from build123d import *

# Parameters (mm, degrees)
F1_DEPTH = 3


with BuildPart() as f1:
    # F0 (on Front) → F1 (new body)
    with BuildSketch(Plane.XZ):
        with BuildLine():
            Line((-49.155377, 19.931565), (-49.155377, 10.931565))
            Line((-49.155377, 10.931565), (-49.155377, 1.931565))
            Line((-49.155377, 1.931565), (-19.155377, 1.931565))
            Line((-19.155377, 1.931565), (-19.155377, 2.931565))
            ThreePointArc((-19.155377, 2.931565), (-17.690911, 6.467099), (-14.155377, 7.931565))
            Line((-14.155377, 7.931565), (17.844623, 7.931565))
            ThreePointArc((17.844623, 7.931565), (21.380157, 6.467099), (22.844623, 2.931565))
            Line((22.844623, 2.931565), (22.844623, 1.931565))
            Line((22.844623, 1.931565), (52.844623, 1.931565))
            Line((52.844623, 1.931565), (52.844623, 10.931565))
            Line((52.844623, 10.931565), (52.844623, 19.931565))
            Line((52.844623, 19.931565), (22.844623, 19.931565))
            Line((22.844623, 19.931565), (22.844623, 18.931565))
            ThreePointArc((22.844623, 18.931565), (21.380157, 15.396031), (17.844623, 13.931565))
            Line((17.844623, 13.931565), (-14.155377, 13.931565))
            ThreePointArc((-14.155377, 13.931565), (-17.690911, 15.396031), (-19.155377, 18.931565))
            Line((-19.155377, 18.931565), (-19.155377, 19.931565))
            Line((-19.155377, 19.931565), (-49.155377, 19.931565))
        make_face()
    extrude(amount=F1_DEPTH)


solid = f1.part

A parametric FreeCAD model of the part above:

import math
import FreeCAD as App
import Part
import Sketcher

V = App.Vector

doc = App.newDocument("Part")
body = doc.addObject("PartDesign::Body", "Body")

# Sketch on XZ plane
sketch1 = body.newObject("Sketcher::SketchObject", "Sketch")
sketch1.AttachmentSupport = (doc.getObject("XZ_Plane"), [""])
sketch1.MapMode = "FlatFace"
sketch1.addGeometry(Part.LineSegment(V(-49.2, 19.9, 0), V(-49.2, 1.9, 0)), False)
sketch1.addGeometry(Part.LineSegment(V(-49.2, 1.9, 0), V(-19.2, 1.9, 0)), False)
sketch1.addGeometry(Part.LineSegment(V(-19.2, 1.9, 0), V(-19.2, 2.9, 0)), False)
sketch1.addGeometry(Part.ArcOfCircle(Part.Circle(V(-14.2, 2.9, 0), V(0, 0, 1), 5), math.radians(90), math.radians(180)), False)
sketch1.addGeometry(Part.LineSegment(V(-14.2, 7.9, 0), V(17.8, 7.9, 0)), False)
sketch1.addGeometry(Part.ArcOfCircle(Part.Circle(V(17.8, 2.9, 0), V(0, 0, 1), 5), math.radians(0), math.radians(90)), False)
sketch1.addGeometry(Part.LineSegment(V(22.8, 2.9, 0), V(22.8, 1.9, 0)), False)
sketch1.addGeometry(Part.LineSegment(V(22.8, 1.9, 0), V(52.8, 1.9, 0)), False)
sketch1.addGeometry(Part.LineSegment(V(52.8, 1.9, 0), V(52.8, 19.9, 0)), False)
sketch1.addGeometry(Part.LineSegment(V(52.8, 19.9, 0), V(22.8, 19.9, 0)), False)
sketch1.addGeometry(Part.LineSegment(V(22.8, 19.9, 0), V(22.8, 18.9, 0)), False)
sketch1.addGeometry(Part.ArcOfCircle(Part.Circle(V(17.8, 18.9, 0), V(0, 0, 1), 5), math.radians(-90), math.radians(0)), False)
sketch1.addGeometry(Part.LineSegment(V(17.8, 13.9, 0), V(-14.2, 13.9, 0)), False)
sketch1.addGeometry(Part.ArcOfCircle(Part.Circle(V(-14.2, 18.9, 0), V(0, 0, 1), 5), math.radians(180), math.radians(270)), False)
sketch1.addGeometry(Part.LineSegment(V(-19.2, 18.9, 0), V(-19.2, 19.9, 0)), False)
sketch1.addGeometry(Part.LineSegment(V(-19.2, 19.9, 0), V(-49.2, 19.9, 0)), False)
sketch1.addConstraint(Sketcher.Constraint("Coincident", 0, 2, 1, 1))
sketch1.addConstraint(Sketcher.Constraint("Coincident", 1, 2, 2, 1))
sketch1.addConstraint(Sketcher.Constraint("Tangent", 2, 2, 3, 2))
sketch1.addConstraint(Sketcher.Constraint("Tangent", 3, 1, 4, 1))
sketch1.addConstraint(Sketcher.Constraint("Tangent", 4, 2, 5, 2))
sketch1.addConstraint(Sketcher.Constraint("Tangent", 5, 1, 6, 1))
sketch1.addConstraint(Sketcher.Constraint("Coincident", 6, 2, 7, 1))
sketch1.addConstraint(Sketcher.Constraint("Coincident", 7, 2, 8, 1))
sketch1.addConstraint(Sketcher.Constraint("Coincident", 8, 2, 9, 1))
sketch1.addConstraint(Sketcher.Constraint("Coincident", 9, 2, 10, 1))
sketch1.addConstraint(Sketcher.Constraint("Tangent", 10, 2, 11, 2))
sketch1.addConstraint(Sketcher.Constraint("Tangent", 11, 1, 12, 1))
sketch1.addConstraint(Sketcher.Constraint("Tangent", 12, 2, 13, 2))
sketch1.addConstraint(Sketcher.Constraint("Tangent", 13, 1, 14, 1))
sketch1.addConstraint(Sketcher.Constraint("Coincident", 14, 2, 15, 1))
sketch1.addConstraint(Sketcher.Constraint("Coincident", 15, 2, 0, 1))
sketch1.addConstraint(Sketcher.Constraint("Vertical", 0))
sketch1.addConstraint(Sketcher.Constraint("Horizontal", 1))
sketch1.addConstraint(Sketcher.Constraint("Vertical", 2))
sketch1.addConstraint(Sketcher.Constraint("Horizontal", 4))
sketch1.addConstraint(Sketcher.Constraint("Vertical", 6))
sketch1.addConstraint(Sketcher.Constraint("Horizontal", 7))
sketch1.addConstraint(Sketcher.Constraint("Vertical", 8))
sketch1.addConstraint(Sketcher.Constraint("Horizontal", 9))
sketch1.addConstraint(Sketcher.Constraint("Vertical", 10))
sketch1.addConstraint(Sketcher.Constraint("Horizontal", 12))
sketch1.addConstraint(Sketcher.Constraint("Vertical", 14))
sketch1.addConstraint(Sketcher.Constraint("Horizontal", 15))
sketch1.addConstraint(Sketcher.Constraint("Equal", 3, 5))
sketch1.addConstraint(Sketcher.Constraint("Equal", 5, 11))
sketch1.addConstraint(Sketcher.Constraint("Equal", 11, 13))
sketch1.addConstraint(Sketcher.Constraint("Horizontal", 1, 2, 6, 2))
sketch1.addConstraint(Sketcher.Constraint("Horizontal", 9, 2, 14, 2))
sketch1.addConstraint(Sketcher.Constraint("Vertical", 5, 3, 11, 3))
sketch1.addConstraint(Sketcher.Constraint("Vertical", 3, 3, 13, 3))
sketch1.addConstraint(Sketcher.Constraint("Equal", 1, 7))
sketch1.addConstraint(Sketcher.Constraint("Equal", 6, 10))
sketch1.addConstraint(Sketcher.Constraint("Radius", 3, 5.0))
sketch1.addConstraint(Sketcher.Constraint("DistanceX", 1, 1, 1, 2, 30.0))
sketch1.addConstraint(Sketcher.Constraint("DistanceX", 4, 1, 4, 2, 32.0))
sketch1.addConstraint(Sketcher.Constraint("DistanceY", 0, 2, 0, 1, 18.0))
sketch1.addConstraint(Sketcher.Constraint("DistanceY", 2, 1, 2, 2, 1.0))
sketch1.addConstraint(Sketcher.Constraint("DistanceX", 3, 3, -1, 1, 14.155377))
sketch1.addConstraint(Sketcher.Constraint("DistanceY", -1, 1, 3, 3, 2.931565))
pad1 = body.newObject("PartDesign::Pad", "Pad")
pad1.Profile = sketch1
pad1.Length = 3

doc.recompute()
